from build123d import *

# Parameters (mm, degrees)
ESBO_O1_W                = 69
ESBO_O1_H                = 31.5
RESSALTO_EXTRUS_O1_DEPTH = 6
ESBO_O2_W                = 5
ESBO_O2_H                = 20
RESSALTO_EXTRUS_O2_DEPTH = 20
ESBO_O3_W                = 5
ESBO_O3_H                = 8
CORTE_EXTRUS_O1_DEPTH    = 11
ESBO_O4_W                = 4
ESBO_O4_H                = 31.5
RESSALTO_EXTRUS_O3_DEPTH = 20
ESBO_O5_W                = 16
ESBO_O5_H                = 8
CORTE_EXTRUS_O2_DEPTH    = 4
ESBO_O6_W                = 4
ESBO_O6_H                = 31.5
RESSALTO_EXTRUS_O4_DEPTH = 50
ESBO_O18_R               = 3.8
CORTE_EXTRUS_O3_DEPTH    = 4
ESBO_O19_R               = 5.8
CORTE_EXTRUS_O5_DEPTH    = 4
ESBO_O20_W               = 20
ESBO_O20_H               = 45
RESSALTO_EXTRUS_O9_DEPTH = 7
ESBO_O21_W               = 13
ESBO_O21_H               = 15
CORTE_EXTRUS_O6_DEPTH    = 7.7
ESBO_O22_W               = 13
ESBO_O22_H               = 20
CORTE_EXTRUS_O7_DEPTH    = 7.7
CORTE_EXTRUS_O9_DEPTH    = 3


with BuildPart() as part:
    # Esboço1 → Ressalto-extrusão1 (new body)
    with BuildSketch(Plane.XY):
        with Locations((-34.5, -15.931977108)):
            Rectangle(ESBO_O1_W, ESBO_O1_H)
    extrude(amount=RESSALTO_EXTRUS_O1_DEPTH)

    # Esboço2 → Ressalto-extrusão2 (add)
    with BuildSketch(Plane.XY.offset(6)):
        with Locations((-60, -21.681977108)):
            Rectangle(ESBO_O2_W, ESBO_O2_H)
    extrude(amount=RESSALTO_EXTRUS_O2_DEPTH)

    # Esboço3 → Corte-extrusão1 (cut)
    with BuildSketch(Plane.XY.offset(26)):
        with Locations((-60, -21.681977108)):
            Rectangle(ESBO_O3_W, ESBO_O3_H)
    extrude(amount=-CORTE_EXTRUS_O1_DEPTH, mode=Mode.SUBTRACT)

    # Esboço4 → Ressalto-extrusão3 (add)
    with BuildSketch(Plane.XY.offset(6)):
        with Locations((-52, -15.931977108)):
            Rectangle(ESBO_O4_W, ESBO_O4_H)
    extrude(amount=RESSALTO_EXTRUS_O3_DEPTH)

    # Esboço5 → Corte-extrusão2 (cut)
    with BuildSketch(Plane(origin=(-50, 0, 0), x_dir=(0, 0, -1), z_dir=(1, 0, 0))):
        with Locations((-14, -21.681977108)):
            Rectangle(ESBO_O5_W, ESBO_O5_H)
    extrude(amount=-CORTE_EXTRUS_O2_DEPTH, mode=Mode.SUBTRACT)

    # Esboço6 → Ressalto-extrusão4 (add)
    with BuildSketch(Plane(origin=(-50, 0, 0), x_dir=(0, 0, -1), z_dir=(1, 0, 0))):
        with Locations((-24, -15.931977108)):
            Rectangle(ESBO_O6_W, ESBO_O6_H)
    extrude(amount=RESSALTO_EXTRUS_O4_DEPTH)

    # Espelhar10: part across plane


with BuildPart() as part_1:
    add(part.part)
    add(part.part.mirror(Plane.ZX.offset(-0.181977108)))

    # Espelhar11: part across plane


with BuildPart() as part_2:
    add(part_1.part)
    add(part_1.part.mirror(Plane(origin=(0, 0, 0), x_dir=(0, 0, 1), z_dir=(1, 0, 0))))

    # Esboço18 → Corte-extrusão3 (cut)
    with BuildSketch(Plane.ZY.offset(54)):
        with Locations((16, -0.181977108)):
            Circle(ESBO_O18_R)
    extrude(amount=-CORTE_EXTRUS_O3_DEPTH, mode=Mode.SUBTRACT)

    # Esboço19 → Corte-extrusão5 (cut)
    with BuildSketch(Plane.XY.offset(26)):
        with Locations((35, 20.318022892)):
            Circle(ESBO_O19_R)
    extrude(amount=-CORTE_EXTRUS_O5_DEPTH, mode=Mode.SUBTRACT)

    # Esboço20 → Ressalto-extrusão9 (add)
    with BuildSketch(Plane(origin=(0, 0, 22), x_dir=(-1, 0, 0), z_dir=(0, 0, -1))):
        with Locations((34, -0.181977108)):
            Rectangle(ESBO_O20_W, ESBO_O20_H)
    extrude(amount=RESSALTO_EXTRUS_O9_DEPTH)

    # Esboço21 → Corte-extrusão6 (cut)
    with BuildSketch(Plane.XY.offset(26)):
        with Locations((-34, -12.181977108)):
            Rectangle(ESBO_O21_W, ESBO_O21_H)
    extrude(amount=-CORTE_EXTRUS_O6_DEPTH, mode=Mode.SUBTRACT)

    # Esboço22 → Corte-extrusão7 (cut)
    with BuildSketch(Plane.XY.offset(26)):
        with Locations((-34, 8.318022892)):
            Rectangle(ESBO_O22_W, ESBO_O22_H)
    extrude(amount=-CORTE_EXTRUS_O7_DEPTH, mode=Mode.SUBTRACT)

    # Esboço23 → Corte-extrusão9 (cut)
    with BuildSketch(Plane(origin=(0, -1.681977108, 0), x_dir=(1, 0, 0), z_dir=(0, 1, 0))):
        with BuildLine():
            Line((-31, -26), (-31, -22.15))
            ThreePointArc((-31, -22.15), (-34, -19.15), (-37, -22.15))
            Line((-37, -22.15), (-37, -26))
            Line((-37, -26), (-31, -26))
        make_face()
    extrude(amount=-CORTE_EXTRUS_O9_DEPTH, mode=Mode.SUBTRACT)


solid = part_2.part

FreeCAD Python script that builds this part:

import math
import FreeCAD as App
import Part
import Sketcher
Q = App.Units.Quantity


def add_polygon(sketch, points):
    """Adds a closed chain of lines whose ends are joined by coincident constraints."""
    first, n = sketch.GeometryCount, len(points)
    for a, b in zip(points, points[1:] + points[:1]):
        sketch.addGeometry(Part.LineSegment(App.Vector(*a, 0), App.Vector(*b, 0)), False)
    for i in range(n):
        sketch.addConstraint(Sketcher.Constraint("Coincident", first + i, 2, first + (i + 1) % n, 1))

doc = App.newDocument("Part")
body = doc.addObject("PartDesign::Body", "Body")

# Sketch on XY plane
sketch1 = doc.addObject("Sketcher::SketchObject", "Sketch")
body.addObject(sketch1)
sketch1.AttachmentSupport = (doc.XY_Plane, [""])
sketch1.MapMode = "FlatFace"
add_polygon(sketch1, [(-69, 0), (-69, -32), (0, -32), (0, 0)])  # lines 0-3
sketch1.addConstraint(Sketcher.Constraint("Vertical", 0))
sketch1.addConstraint(Sketcher.Constraint("Horizontal", 1))
sketch1.addConstraint(Sketcher.Constraint("Vertical", 2))
sketch1.addConstraint(Sketcher.Constraint("Horizontal", 3))
sketch1.addConstraint(Sketcher.Constraint("PointOnObject", 1, 2, -2))
sketch1.addConstraint(Sketcher.Constraint("DistanceX", 1, 1, 1, 2, Q("69 mm")))
sketch1.addConstraint(Sketcher.Constraint("DistanceY", 0, 2, 0, 1, Q("31.5 mm")))
sketch1.addConstraint(Sketcher.Constraint("DistanceY", 0, 2, -1, 1, Q("31.681977 mm")))
pad1 = doc.addObject("PartDesign::Pad", "Pad")
body.addObject(pad1)
pad1.Profile = sketch1
pad1.Length = 6

# Sketch on XY plane
sketch2 = doc.addObject("Sketcher::SketchObject", "Sketch001")
body.addObject(sketch2)
sketch2.AttachmentSupport = (doc.XY_Plane, [""])
sketch2.MapMode = "FlatFace"
sketch2.AttachmentOffset = App.Placement(App.Vector(0, 0, 6), App.Rotation())
add_polygon(sketch2, [(-62, -12), (-62, -32), (-58, -32), (-58, -12)])  # lines 0-3
sketch2.addConstraint(Sketcher.Constraint("Vertical", 0))
sketch2.addConstraint(Sketcher.Constraint("Horizontal", 1))
sketch2.addConstraint(Sketcher.Constraint("Vertical", 2))
sketch2.addConstraint(Sketcher.Constraint("Horizontal", 3))
sketch2.addConstraint(Sketcher.Constraint("DistanceX", 1, 1, 1, 2, Q("5 mm")))
sketch2.addConstraint(Sketcher.Constraint("DistanceY", 0, 2, 0, 1, Q("20 mm")))
sketch2.addConstraint(Sketcher.Constraint("DistanceX", 0, 2, -1, 1, Q("62.5 mm")))
sketch2.addConstraint(Sketcher.Constraint("DistanceY", 0, 2, -1, 1, Q("31.681977 mm")))
pad2 = doc.addObject("PartDesign::Pad", "Pad001")
body.addObject(pad2)
pad2.Profile = sketch2
pad2.Length = 20

# Sketch on XY plane
sketch3 = doc.addObject("Sketcher::SketchObject", "Sketch002")
body.addObject(sketch3)
sketch3.AttachmentSupport = (doc.XY_Plane, [""])
sketch3.MapMode = "FlatFace"
sketch3.AttachmentOffset = App.Placement(App.Vector(0, 0, 26), App.Rotation())
add_polygon(sketch3, [(-62, -18), (-62, -26), (-58, -26), (-58, -18)])  # lines 0-3
sketch3.addConstraint(Sketcher.Constraint("Vertical", 0))
sketch3.addConstraint(Sketcher.Constraint("Horizontal", 1))
sketch3.addConstraint(Sketcher.Constraint("Vertical", 2))
sketch3.addConstraint(Sketcher.Constraint("Horizontal", 3))
sketch3.addConstraint(Sketcher.Constraint("DistanceX", 1, 1, 1, 2, Q("5 mm")))
sketch3.addConstraint(Sketcher.Constraint("DistanceY", 0, 2, 0, 1, Q("8 mm")))
sketch3.addConstraint(Sketcher.Constraint("DistanceX", 0, 2, -1, 1, Q("62.5 mm")))
sketch3.addConstraint(Sketcher.Constraint("DistanceY", 0, 2, -1, 1, Q("25.681977 mm")))
pocket1 = doc.addObject("PartDesign::Pocket", "Pocket")
body.addObject(pocket1)
pocket1.Profile = sketch3
pocket1.Length = 11

# Sketch on XY plane
sketch4 = doc.addObject("Sketcher::SketchObject", "Sketch003")
body.addObject(sketch4)
sketch4.AttachmentSupport = (doc.XY_Plane, [""])
sketch4.MapMode = "FlatFace"
sketch4.AttachmentOffset = App.Placement(App.Vector(0, 0, 6), App.Rotation())
add_polygon(sketch4, [(-54, -0.2), (-54, -31.7), (-50, -31.7), (-50, -0.2)])  # lines 0-3
sketch4.addConstraint(Sketcher.Constraint("Vertical", 0))
sketch4.addConstraint(Sketcher.Constraint("Horizontal", 1))
sketch4.addConstraint(Sketcher.Constraint("Vertical", 2))
sketch4.addConstraint(Sketcher.Constraint("Horizontal", 3))
sketch4.addConstraint(Sketcher.Constraint("DistanceX", 1, 1, 1, 2, Q("4 mm")))
sketch4.addConstraint(Sketcher.Constraint("DistanceY", 0, 2, 0, 1, Q("31.5 mm")))
sketch4.addConstraint(Sketcher.Constraint("DistanceX", 0, 2, -1, 1, Q("54 mm")))
sketch4.addConstraint(Sketcher.Constraint("DistanceY", 0, 2, -1, 1, Q("31.681977 mm")))
pad3 = doc.addObject("PartDesign::Pad", "Pad002")
body.addObject(pad3)
pad3.Profile = sketch4
pad3.Length = 20

# Sketch on YZ plane
sketch5 = doc.addObject("Sketcher::SketchObject", "Sketch004")
body.addObject(sketch5)
sketch5.AttachmentSupport = (doc.YZ_Plane, [""])
sketch5.MapMode = "FlatFace"
sketch5.AttachmentOffset = App.Placement(App.Vector(0, 0, -50), App.Rotation())
add_polygon(sketch5, [(-18, 22), (-26, 22), (-26, 6), (-18, 6)])  # lines 0-3
sketch5.addConstraint(Sketcher.Constraint("Horizontal", 0))
sketch5.addConstraint(Sketcher.Constraint("Vertical", 1))
sketch5.addConstraint(Sketcher.Constraint("Horizontal", 2))
sketch5.addConstraint(Sketcher.Constraint("Vertical", 3))
sketch5.addConstraint(Sketcher.Constraint("DistanceX", 0, 2, 0, 1, Q("8 mm")))
sketch5.addConstraint(Sketcher.Constraint("DistanceY", 1, 2, 1, 1, Q("16 mm")))
sketch5.addConstraint(Sketcher.Constraint("DistanceY", -1, 1, 0, 2, Q("22 mm")))
sketch5.addConstraint(Sketcher.Constraint("DistanceX", 0, 2, -1, 1, Q("25.681977 mm")))
pocket2 = doc.addObject("PartDesign::Pocket", "Pocket001")
body.addObject(pocket2)
pocket2.Profile = sketch5
pocket2.Length = 4

# Sketch on YZ plane
sketch6 = doc.addObject("Sketcher::SketchObject", "Sketch005")
body.addObject(sketch6)
sketch6.AttachmentSupport = (doc.YZ_Plane, [""])
sketch6.MapMode = "FlatFace"
sketch6.AttachmentOffset = App.Placement(App.Vector(0, 0, -50), App.Rotation())
add_polygon(sketch6, [(-0.2, 26), (-31.7, 26), (-31.7, 22), (-0.2, 22)])  # lines 0-3
sketch6.addConstraint(Sketcher.Constraint("Horizontal", 0))
sketch6.addConstraint(Sketcher.Constraint("Vertical", 1))
sketch6.addConstraint(Sketcher.Constraint("Horizontal", 2))
sketch6.addConstraint(Sketcher.Constraint("Vertical", 3))
sketch6.addConstraint(Sketcher.Constraint("DistanceY", 1, 2, 1, 1, Q("4 mm")))
sketch6.addConstraint(Sketcher.Constraint("DistanceX", 0, 2, 0, 1, Q("31.5 mm")))
sketch6.addConstraint(Sketcher.Constraint("DistanceY", -1, 1, 0, 2, Q("26 mm")))
sketch6.addConstraint(Sketcher.Constraint("DistanceX", 0, 2, -1, 1, Q("31.681977 mm")))
pad4 = doc.addObject("PartDesign::Pad", "Pad003")
body.addObject(pad4)
pad4.Profile = sketch6
pad4.Length = 50
body2 = doc.addObject("PartDesign::Body", "Body001")
doc.recompute()

body2.BaseFeature = body
doc.recompute()

mirroring = doc.addObject("Part::Mirroring", "Mirroring")
mirroring.Source = body
mirroring.Base = App.Vector(0, -0.181977, 0)
mirroring.Normal = App.Vector(0, 1, 0)
body3 = doc.addObject("PartDesign::Body", "Body002")
body3.BaseFeature = mirroring
boolean = doc.addObject("PartDesign::Boolean", "Boolean")
body2.addObject(boolean)
boolean.Type = "Fuse"
boolean.addObjects([body3])
doc.recompute()
body4 = doc.addObject("PartDesign::Body", "Body003")
doc.recompute()

body4.BaseFeature = body2
doc.recompute()

mirroring2 = doc.addObject("Part::Mirroring", "Mirroring001")
mirroring2.Source = body2
mirroring2.Base = App.Vector(0, 0, 0)
mirroring2.Normal = App.Vector(1, 0, 0)
body5 = doc.addObject("PartDesign::Body", "Body004")
body5.BaseFeature = mirroring2
boolean2 = doc.addObject("PartDesign::Boolean", "Boolean001")
body4.addObject(boolean2)
boolean2.Type = "Fuse"
boolean2.addObjects([body5])
doc.recompute()

# Sketch on YZ plane
sketch7 = doc.addObject("Sketcher::SketchObject", "Sketch006")
body4.addObject(sketch7)
sketch7.AttachmentSupport = (doc.getObject("YZ_Plane003"), [""])
sketch7.MapMode = "FlatFace"
sketch7.AttachmentOffset = App.Placement(App.Vector(0, 0, -54), App.Rotation())
sketch7.addGeometry(Part.Circle(App.Vector(-0.2, 16, 0), App.Vector(0, 0, 1), 3.8), False)
sketch7.addConstraint(Sketcher.Constraint("Diameter", 0, Q("7.6 mm")))
sketch7.addConstraint(Sketcher.Constraint("DistanceY", -1, 1, 0, 3, Q("16 mm")))
sketch7.addConstraint(Sketcher.Constraint("DistanceX", 0, 3, -1, 1, Q("0.181977 mm")))
pocket3 = doc.addObject("PartDesign::Pocket", "Pocket002")
body4.addObject(pocket3)
pocket3.Profile = sketch7
pocket3.Length = 4
pocket3.Reversed = True

# Sketch on XY plane
sketch8 = doc.addObject("Sketcher::SketchObject", "Sketch007")
body4.addObject(sketch8)
sketch8.AttachmentSupport = (doc.getObject("XY_Plane003"), [""])
sketch8.MapMode = "FlatFace"
sketch8.AttachmentOffset = App.Placement(App.Vector(0, 0, 26), App.Rotation())
sketch8.addGeometry(Part.Circle(App.Vector(35, 20, 0), App.Vector(0, 0, 1), 6), False)
sketch8.addConstraint(Sketcher.Constraint("Diameter", 0, Q("11.6 mm")))
sketch8.addConstraint(Sketcher.Constraint("DistanceX", -1, 1, 0, 3, Q("35 mm")))
sketch8.addConstraint(Sketcher.Constraint("DistanceY", -1, 1, 0, 3, Q("20.318023 mm")))
pocket4 = doc.addObject("PartDesign::Pocket", "Pocket003")
body4.addObject(pocket4)
pocket4.Profile = sketch8
pocket4.Length = 4

# Sketch on XY plane
sketch9 = doc.addObject("Sketcher::SketchObject", "Sketch008")
body4.addObject(sketch9)
sketch9.AttachmentSupport = (doc.getObject("XY_Plane003"), [""])
sketch9.MapMode = "FlatFace"
sketch9.AttachmentOffset = App.Placement(App.Vector(0, 0, 22), App.Rotation())
add_polygon(sketch9, [(-24, 22), (-24, -23), (-44, -23), (-44, 22)])  # lines 0-3
sketch9.addConstraint(Sketcher.Constraint("Vertical", 0))
sketch9.addConstraint(Sketcher.Constraint("Horizontal", 1))
sketch9.addConstraint(Sketcher.Constraint("Vertical", 2))
sketch9.addConstraint(Sketcher.Constraint("Horizontal", 3))
sketch9.addConstraint(Sketcher.Constraint("DistanceX", 1, 2, 1, 1, Q("20 mm")))
sketch9.addConstraint(Sketcher.Constraint("DistanceY", 0, 2, 0, 1, Q("45 mm")))
sketch9.addConstraint(Sketcher.Constraint("DistanceX", 0, 2, -1, 1, Q("24 mm")))
sketch9.addConstraint(Sketcher.Constraint("DistanceY", 0, 2, -1, 1, Q("22.681977 mm")))
pad5 = doc.addObject("PartDesign::Pad", "Pad004")
body4.addObject(pad5)
pad5.Profile = sketch9
pad5.Length = 7
pad5.Reversed = True

# Sketch on XY plane
sketch10 = doc.addObject("Sketcher::SketchObject", "Sketch009")
body4.addObject(sketch10)
sketch10.AttachmentSupport = (doc.getObject("XY_Plane003"), [""])
sketch10.MapMode = "FlatFace"
sketch10.AttachmentOffset = App.Placement(App.Vector(0, 0, 26), App.Rotation())
add_polygon(sketch10, [(-40, -5), (-40, -20), (-28, -20), (-28, -5)])  # lines 0-3
sketch10.addConstraint(Sketcher.Constraint("Vertical", 0))
sketch10.addConstraint(Sketcher.Constraint("Horizontal", 1))
sketch10.addConstraint(Sketcher.Constraint("Vertical", 2))
sketch10.addConstraint(Sketcher.Constraint("Horizontal", 3))
sketch10.addConstraint(Sketcher.Constraint("DistanceX", 1, 1, 1, 2, Q("13 mm")))
sketch10.addConstraint(Sketcher.Constraint("DistanceY", 0, 2, 0, 1, Q("15 mm")))
sketch10.addConstraint(Sketcher.Constraint("DistanceX", 0, 2, -1, 1, Q("40.5 mm")))
sketch10.addConstraint(Sketcher.Constraint("DistanceY", 0, 2, -1, 1, Q("19.681977 mm")))
pocket5 = doc.addObject("PartDesign::Pocket", "Pocket004")
body4.addObject(pocket5)
pocket5.Profile = sketch10
pocket5.Length = 7.7

# Sketch on XY plane
sketch11 = doc.addObject("Sketcher::SketchObject", "Sketch010")
body4.addObject(sketch11)
sketch11.AttachmentSupport = (doc.getObject("XY_Plane003"), [""])
sketch11.MapMode = "FlatFace"
sketch11.AttachmentOffset = App.Placement(App.Vector(0, 0, 26), App.Rotation())
add_polygon(sketch11, [(-40, 18), (-40, -2), (-28, -2), (-28, 18)])  # lines 0-3
sketch11.addConstraint(Sketcher.Constraint("Vertical", 0))
sketch11.addConstraint(Sketcher.Constraint("Horizontal", 1))
sketch11.addConstraint(Sketcher.Constraint("Vertical", 2))
sketch11.addConstraint(Sketcher.Constraint("Horizontal", 3))
sketch11.addConstraint(Sketcher.Constraint("DistanceX", 1, 1, 1, 2, Q("13 mm")))
sketch11.addConstraint(Sketcher.Constraint("DistanceY", 0, 2, 0, 1, Q("20 mm")))
sketch11.addConstraint(Sketcher.Constraint("DistanceX", 0, 2, -1, 1, Q("40.5 mm")))
sketch11.addConstraint(Sketcher.Constraint("DistanceY", 0, 2, -1, 1, Q("1.681977 mm")))
pocket6 = doc.addObject("PartDesign::Pocket", "Pocket005")
body4.addObject(pocket6)
pocket6.Profile = sketch11
pocket6.Length = 7.7

# Sketch on XZ plane
sketch12 = doc.addObject("Sketcher::SketchObject", "Sketch011")
body4.addObject(sketch12)
sketch12.AttachmentSupport = (doc.getObject("XZ_Plane003"), [""])
sketch12.MapMode = "FlatFace"
sketch12.AttachmentOffset = App.Placement(App.Vector(0, 0, 1.681977), App.Rotation())
sketch12.addGeometry(Part.LineSegment(App.Vector(-31, 26, 0), App.Vector(-31, 22.1, 0)), False)
sketch12.addGeometry(Part.ArcOfCircle(Part.Circle(App.Vector(-34, 22.1, 0), App.Vector(0, 0, 1), 3), math.radians(180), math.radians(360)), False)
sketch12.addGeometry(Part.LineSegment(App.Vector(-37, 22.1, 0), App.Vector(-37, 26, 0)), False)
sketch12.addGeometry(Part.LineSegment(App.Vector(-37, 26, 0), App.Vector(-31, 26, 0)), False)
sketch12.addConstraint(Sketcher.Constraint("Tangent", 0, 2, 1, 2))
sketch12.addConstraint(Sketcher.Constraint("Tangent", 1, 1, 2, 1))
sketch12.addConstraint(Sketcher.Constraint("Coincident", 2, 2, 3, 1))
sketch12.addConstraint(Sketcher.Constraint("Coincident", 3, 2, 0, 1))
sketch12.addConstraint(Sketcher.Constraint("Vertical", 0))
sketch12.addConstraint(Sketcher.Constraint("Vertical", 2))
sketch12.addConstraint(Sketcher.Constraint("Horizontal", 3))
sketch12.addConstraint(Sketcher.Constraint("Radius", 1, Q("3 mm")))
sketch12.addConstraint(Sketcher.Constraint("DistanceX", 1, 3, -1, 1, Q("34 mm")))
sketch12.addConstraint(Sketcher.Constraint("DistanceY", -1, 1, 2, 2, Q("26 mm")))
sketch12.addConstraint(Sketcher.Constraint("DistanceY", 0, 2, 0, 1, Q("3.85 mm")))
pocket7 = doc.addObject("PartDesign::Pocket", "Pocket006")
body4.addObject(pocket7)
pocket7.Profile = sketch12
pocket7.Length = 3
pocket7.Reversed = True
mirroring.Visibility = False
mirroring2.Visibility = False

doc.recompute()
